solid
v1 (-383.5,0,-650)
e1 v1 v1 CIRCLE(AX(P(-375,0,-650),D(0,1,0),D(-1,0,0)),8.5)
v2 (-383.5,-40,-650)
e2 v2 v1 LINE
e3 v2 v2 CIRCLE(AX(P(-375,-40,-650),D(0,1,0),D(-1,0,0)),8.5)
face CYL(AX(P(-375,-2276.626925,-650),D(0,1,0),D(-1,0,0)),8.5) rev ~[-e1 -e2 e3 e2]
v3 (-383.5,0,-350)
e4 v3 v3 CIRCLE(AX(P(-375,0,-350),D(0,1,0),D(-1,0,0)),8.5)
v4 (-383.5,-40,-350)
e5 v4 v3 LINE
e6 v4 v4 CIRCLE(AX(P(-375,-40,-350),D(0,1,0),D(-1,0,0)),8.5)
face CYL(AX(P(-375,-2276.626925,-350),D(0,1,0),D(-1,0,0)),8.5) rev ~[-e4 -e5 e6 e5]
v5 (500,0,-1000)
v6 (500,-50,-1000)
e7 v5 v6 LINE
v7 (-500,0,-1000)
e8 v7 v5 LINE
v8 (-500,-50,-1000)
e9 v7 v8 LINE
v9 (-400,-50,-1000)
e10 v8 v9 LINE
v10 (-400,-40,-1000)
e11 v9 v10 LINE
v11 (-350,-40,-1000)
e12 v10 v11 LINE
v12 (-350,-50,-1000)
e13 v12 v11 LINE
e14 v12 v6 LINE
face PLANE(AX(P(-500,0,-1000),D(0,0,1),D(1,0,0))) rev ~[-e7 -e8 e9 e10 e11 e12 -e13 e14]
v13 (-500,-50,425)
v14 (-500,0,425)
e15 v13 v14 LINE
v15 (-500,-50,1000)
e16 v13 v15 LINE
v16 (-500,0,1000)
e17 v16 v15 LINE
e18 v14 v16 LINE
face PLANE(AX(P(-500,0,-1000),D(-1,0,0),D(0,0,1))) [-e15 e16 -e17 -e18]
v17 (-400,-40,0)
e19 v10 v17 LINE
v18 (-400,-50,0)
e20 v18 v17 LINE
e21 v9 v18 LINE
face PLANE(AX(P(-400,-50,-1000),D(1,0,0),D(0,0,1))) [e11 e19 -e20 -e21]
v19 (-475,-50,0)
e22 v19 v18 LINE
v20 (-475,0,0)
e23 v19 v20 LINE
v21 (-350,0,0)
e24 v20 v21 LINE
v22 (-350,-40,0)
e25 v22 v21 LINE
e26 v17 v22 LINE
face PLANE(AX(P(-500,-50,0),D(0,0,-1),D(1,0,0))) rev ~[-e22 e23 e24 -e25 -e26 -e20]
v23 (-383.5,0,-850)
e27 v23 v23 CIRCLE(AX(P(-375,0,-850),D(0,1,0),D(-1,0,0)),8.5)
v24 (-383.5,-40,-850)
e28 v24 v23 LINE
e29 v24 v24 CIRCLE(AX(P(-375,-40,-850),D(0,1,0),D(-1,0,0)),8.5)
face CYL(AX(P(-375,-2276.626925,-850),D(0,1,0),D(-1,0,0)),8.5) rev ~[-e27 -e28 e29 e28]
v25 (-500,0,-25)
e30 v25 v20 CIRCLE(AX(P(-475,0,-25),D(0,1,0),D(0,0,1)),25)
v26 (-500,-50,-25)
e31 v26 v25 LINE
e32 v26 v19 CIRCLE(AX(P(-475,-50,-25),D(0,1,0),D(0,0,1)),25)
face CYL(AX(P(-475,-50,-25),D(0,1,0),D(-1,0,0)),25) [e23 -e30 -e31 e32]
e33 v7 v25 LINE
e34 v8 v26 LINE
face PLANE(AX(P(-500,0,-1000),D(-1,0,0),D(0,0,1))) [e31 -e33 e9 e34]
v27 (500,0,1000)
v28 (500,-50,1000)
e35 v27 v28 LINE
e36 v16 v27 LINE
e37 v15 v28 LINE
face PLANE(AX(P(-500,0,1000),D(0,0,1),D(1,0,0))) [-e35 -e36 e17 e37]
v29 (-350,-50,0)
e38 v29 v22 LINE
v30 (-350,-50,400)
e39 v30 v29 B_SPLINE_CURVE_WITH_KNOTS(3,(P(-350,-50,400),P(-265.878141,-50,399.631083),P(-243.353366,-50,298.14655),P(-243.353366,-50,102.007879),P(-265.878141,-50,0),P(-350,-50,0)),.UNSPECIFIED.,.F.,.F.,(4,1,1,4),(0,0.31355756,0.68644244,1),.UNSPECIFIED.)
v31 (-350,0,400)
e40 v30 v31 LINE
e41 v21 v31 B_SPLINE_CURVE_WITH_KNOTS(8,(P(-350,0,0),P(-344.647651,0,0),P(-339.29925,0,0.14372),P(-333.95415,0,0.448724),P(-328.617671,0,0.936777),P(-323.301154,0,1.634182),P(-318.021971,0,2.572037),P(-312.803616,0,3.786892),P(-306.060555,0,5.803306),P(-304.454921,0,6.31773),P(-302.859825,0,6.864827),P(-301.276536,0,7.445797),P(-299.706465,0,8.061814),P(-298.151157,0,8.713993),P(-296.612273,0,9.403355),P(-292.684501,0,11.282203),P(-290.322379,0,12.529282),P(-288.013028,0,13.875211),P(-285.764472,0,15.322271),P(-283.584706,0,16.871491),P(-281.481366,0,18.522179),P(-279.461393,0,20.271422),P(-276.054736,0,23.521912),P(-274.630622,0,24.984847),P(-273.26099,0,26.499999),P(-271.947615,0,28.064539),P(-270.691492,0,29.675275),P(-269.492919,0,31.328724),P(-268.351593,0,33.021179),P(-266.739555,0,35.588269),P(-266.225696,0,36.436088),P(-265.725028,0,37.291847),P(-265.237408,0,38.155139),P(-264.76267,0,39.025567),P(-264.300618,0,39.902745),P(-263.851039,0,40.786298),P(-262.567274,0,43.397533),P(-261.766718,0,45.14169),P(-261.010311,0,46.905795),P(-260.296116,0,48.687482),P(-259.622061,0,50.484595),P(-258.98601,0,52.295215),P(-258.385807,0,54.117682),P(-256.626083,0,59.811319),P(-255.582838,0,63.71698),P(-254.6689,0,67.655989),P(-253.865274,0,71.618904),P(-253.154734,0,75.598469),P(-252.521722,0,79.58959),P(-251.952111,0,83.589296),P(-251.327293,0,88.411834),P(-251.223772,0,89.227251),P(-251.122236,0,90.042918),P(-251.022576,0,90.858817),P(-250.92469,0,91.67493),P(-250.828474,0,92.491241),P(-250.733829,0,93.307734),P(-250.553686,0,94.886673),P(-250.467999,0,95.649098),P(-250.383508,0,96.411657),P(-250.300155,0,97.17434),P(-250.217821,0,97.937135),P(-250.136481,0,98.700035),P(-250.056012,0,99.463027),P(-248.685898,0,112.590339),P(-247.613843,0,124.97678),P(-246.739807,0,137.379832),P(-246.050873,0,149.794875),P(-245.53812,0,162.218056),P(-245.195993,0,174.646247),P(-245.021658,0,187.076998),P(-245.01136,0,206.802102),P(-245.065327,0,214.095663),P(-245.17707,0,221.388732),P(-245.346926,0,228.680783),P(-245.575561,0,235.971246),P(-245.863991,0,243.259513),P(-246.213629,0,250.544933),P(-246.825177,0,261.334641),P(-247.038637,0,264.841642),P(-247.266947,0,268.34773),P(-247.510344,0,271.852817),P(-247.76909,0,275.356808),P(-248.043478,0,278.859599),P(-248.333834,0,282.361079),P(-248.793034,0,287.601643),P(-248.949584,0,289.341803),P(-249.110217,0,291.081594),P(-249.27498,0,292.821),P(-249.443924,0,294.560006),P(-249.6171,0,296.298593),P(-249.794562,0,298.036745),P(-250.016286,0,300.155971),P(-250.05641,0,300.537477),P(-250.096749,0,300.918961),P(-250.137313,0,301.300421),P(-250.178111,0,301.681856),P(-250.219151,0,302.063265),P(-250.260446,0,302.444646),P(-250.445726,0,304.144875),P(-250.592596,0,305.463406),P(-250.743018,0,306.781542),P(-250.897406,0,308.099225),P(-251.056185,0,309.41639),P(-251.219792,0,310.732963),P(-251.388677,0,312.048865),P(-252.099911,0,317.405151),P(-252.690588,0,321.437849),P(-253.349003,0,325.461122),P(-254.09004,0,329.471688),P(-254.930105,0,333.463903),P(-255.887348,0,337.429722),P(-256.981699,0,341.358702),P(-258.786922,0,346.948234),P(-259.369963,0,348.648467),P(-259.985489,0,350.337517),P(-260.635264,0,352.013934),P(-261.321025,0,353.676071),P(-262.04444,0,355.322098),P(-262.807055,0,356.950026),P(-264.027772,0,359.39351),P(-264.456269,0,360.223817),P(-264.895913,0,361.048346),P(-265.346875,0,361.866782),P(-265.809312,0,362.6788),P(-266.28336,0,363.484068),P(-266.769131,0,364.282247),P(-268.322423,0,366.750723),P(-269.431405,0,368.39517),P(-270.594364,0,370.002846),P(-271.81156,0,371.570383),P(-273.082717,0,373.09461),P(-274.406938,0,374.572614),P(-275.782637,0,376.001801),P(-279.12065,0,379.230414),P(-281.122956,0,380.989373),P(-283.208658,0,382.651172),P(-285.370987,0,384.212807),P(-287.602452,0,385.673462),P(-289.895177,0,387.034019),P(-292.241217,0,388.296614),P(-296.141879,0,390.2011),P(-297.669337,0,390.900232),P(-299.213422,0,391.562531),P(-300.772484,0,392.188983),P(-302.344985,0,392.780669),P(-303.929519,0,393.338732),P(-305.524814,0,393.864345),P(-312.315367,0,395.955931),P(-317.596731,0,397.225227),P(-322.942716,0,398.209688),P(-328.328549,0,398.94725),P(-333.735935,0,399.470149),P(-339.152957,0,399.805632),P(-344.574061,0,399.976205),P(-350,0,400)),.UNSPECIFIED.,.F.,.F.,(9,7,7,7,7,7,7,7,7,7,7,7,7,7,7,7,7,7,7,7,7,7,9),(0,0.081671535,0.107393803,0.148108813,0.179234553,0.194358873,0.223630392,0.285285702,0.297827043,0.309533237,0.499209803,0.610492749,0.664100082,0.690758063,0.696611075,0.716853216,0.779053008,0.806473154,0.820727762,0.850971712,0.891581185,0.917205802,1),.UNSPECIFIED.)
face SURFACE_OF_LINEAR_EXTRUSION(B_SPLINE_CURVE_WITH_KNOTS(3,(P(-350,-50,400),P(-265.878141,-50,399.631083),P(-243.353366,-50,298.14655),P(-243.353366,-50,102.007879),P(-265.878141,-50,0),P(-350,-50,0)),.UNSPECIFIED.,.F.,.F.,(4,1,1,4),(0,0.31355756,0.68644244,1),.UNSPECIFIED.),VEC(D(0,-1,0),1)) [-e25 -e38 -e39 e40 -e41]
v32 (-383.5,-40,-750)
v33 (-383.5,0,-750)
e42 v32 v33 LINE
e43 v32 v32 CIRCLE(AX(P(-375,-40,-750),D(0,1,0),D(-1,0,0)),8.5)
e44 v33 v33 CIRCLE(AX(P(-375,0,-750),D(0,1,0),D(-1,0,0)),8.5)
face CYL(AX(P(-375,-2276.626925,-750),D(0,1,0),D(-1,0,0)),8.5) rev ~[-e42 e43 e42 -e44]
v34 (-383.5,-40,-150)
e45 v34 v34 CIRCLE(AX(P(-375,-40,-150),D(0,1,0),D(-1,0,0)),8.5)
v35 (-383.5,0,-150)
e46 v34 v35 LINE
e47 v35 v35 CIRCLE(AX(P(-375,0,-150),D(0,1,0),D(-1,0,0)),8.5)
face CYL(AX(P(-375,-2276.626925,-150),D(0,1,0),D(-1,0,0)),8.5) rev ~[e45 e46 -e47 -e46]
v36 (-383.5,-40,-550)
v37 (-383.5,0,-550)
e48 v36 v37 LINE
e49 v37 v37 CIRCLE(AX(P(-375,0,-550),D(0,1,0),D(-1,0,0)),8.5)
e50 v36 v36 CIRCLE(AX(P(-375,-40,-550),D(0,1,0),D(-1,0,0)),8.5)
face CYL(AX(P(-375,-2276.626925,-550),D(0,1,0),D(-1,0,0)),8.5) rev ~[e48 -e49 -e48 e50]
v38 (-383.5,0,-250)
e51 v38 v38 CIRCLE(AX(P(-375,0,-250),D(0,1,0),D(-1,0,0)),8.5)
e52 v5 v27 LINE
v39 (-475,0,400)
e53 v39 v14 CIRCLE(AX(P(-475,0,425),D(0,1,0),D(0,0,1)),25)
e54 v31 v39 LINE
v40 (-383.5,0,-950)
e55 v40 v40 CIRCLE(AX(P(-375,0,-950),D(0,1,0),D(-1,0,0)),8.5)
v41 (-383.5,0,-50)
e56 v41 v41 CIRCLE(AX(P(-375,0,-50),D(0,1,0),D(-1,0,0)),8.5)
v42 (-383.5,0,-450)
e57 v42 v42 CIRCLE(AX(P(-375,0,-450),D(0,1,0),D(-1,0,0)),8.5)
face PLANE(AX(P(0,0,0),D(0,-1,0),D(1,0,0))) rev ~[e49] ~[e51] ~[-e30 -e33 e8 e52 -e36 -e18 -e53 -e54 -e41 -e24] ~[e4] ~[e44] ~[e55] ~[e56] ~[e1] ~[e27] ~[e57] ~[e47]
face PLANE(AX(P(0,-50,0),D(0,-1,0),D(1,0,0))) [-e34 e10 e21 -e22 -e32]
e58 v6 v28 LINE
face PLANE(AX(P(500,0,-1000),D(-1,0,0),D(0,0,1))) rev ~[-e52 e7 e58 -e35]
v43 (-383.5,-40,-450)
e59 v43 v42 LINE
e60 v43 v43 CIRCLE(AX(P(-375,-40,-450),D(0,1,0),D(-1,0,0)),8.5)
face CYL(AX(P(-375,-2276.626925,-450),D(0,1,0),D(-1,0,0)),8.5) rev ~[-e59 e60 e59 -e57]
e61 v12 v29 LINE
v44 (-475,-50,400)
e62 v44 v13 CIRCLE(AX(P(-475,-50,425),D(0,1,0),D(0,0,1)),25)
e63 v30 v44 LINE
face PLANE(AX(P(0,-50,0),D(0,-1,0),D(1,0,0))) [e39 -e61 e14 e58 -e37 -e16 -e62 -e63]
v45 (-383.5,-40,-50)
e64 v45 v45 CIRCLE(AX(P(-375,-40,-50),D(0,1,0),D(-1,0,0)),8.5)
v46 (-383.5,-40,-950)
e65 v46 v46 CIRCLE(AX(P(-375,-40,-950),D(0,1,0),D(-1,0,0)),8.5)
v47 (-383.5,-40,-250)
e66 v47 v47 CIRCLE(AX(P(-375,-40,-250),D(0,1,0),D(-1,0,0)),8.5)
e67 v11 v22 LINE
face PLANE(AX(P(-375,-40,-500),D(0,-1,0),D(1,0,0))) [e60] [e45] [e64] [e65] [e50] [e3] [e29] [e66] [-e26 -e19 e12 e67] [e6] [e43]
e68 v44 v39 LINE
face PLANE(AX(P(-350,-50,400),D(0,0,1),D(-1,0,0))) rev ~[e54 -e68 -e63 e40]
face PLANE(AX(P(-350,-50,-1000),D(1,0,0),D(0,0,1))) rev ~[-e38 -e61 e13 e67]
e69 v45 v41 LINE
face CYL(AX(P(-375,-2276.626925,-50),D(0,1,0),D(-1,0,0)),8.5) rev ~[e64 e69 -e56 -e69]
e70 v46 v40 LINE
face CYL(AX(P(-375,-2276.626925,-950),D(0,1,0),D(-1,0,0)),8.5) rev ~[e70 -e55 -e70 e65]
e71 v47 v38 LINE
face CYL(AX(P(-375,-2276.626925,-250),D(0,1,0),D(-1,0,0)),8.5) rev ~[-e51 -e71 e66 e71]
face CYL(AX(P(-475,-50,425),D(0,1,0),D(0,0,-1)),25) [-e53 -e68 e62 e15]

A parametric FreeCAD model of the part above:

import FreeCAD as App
import Part
import Sketcher
Q = App.Units.Quantity


def edges_at(feature, points):
    """Names of the edges that pass closest to the given points."""
    edges = feature.Shape.Edges
    near = lambda p: min(range(len(edges)), key=lambda i: edges[i].distToShape(Part.Vertex(*p))[0])
    return sorted({f"Edge{near(p) + 1}" for p in points})


def add_polygon(sketch, points):
    """Adds a closed chain of lines whose ends are joined by coincident constraints."""
    first, n = sketch.GeometryCount, len(points)
    for a, b in zip(points, points[1:] + points[:1]):
        sketch.addGeometry(Part.LineSegment(App.Vector(*a, 0), App.Vector(*b, 0)), False)
    for i in range(n):
        sketch.addConstraint(Sketcher.Constraint("Coincident", first + i, 2, first + (i + 1) % n, 1))

doc = App.newDocument("Part")
body = doc.addObject("PartDesign::Body", "Body")

sketch1 = body.newObject("Sketcher::SketchObject", "Sketch")
sketch1.AttachmentSupport = (doc.getObject("XZ_Plane"), [""])
sketch1.MapMode = "FlatFace"
add_polygon(sketch1, [(-500, 1000), (-500, -1000), (500, -1000), (500, 1000)])
sketch1.addConstraint([
    Sketcher.Constraint("Vertical", 0),
    Sketcher.Constraint("Horizontal", 1),
    Sketcher.Constraint("Vertical", 2),
    Sketcher.Constraint("Horizontal", 3),
    Sketcher.Constraint("Symmetric", 0, 2, 2, 2, -1, 1),
    Sketcher.Constraint("DistanceX", 1, 1, 1, 2, Q("1000 mm")),
    Sketcher.Constraint("DistanceY", 0, 2, 0, 1, Q("2000 mm")),
])
pad1 = body.newObject("PartDesign::Pad", "Pad")
pad1.Profile = sketch1
pad1.Length = 50

sketch2 = body.newObject("Sketcher::SketchObject", "Sketch001")
sketch2.AttachmentSupport = (doc.getObject("XZ_Plane"), [""])
sketch2.MapMode = "FlatFace"
sketch2.AttachmentOffset = App.Placement(App.Vector(0, 0, 50), App.Rotation())
add_polygon(sketch2, [(-400, 0), (-400, -1000), (-350, -1000), (-350, 0)])
sketch2.addConstraint([
    Sketcher.Constraint("Vertical", 0),
    Sketcher.Constraint("Horizontal", 1),
    Sketcher.Constraint("Vertical", 2),
    Sketcher.Constraint("Horizontal", 3),
    Sketcher.Constraint("PointOnObject", 2, 2, -1),
    Sketcher.Constraint("DistanceX", 1, 1, 1, 2, Q("50 mm")),
    Sketcher.Constraint("DistanceY", 0, 2, 0, 1, Q("1000 mm")),
    Sketcher.Constraint("DistanceX", 0, 2, -1, 1, Q("400 mm")),
])
pocket1 = body.newObject("PartDesign::Pocket", "Pocket")
pocket1.Profile = sketch2
pocket1.Length = 10

sketch3 = body.newObject("Sketcher::SketchObject", "Sketch002")
sketch3.AttachmentSupport = (doc.getObject("XZ_Plane"), [""])
sketch3.MapMode = "FlatFace"
sketch3.AttachmentOffset = App.Placement(App.Vector(0, 0, 50), App.Rotation())
sketch3.addGeometry([
    Part.LineSegment(App.Vector(-500, 400, 0), App.Vector(-500, 0, 0)),
    Part.LineSegment(App.Vector(-500, 0, 0), App.Vector(-350, 0, 0)),
    Part.BSplineCurve([App.Vector(-350, 400, 0), App.Vector(-265.878141, 399.631083, 0), App.Vector(-243.353366, 298.14655, 0), App.Vector(-243.353366, 102.007879, 0), App.Vector(-265.878141, 0, 0), App.Vector(-350, 0, 0)], [4, 1, 1, 4], [0, 0.31355756, 0.68644244, 1], False, 3, [1, 1, 1, 1, 1, 1], False),
    Part.LineSegment(App.Vector(-350, 400, 0), App.Vector(-500, 400, 0)),
], False)
sketch3.addConstraint([
    Sketcher.Constraint("Block", 2),
    Sketcher.Constraint("Coincident", 0, 2, 1, 1),
    Sketcher.Constraint("Coincident", 1, 2, 2, 2),
    Sketcher.Constraint("Coincident", 2, 1, 3, 1),
    Sketcher.Constraint("Coincident", 3, 2, 0, 1),
    Sketcher.Constraint("Vertical", 0),
    Sketcher.Constraint("Horizontal", 1),
    Sketcher.Constraint("Horizontal", 3),
    Sketcher.Constraint("DistanceX", 1, 1, 1, 2, Q("150 mm")),
])
pocket2 = body.newObject("PartDesign::Pocket", "Pocket001")
pocket2.Profile = sketch3
pocket2.Type = "ThroughAll"
doc.recompute()

fillet = body.newObject("PartDesign::Fillet", "Fillet")
fillet.Base = (pocket2, edges_at(pocket2, [(-500, -25, 400), (-500, -25, 0)]))
fillet.Radius = 25

sketch4 = body.newObject("Sketcher::SketchObject", "Sketch003")
sketch4.AttachmentSupport = (doc.getObject("XZ_Plane"), [""])
sketch4.MapMode = "FlatFace"
sketch4.AttachmentOffset = App.Placement(App.Vector(0, 0, 40), App.Rotation())
sketch4.addGeometry([
    Part.Circle(App.Vector(-375, -50, 0), App.Vector(0, 0, 1), 8),
    Part.Circle(App.Vector(-375, -150, 0), App.Vector(0, 0, 1), 8),
    Part.Circle(App.Vector(-375, -250, 0), App.Vector(0, 0, 1), 8),
    Part.Circle(App.Vector(-375, -350, 0), App.Vector(0, 0, 1), 8),
    Part.Circle(App.Vector(-375, -450, 0), App.Vector(0, 0, 1), 8),
    Part.Circle(App.Vector(-375, -550, 0), App.Vector(0, 0, 1), 8),
    Part.Circle(App.Vector(-375, -650, 0), App.Vector(0, 0, 1), 8),
    Part.Circle(App.Vector(-375, -750, 0), App.Vector(0, 0, 1), 8),
    Part.Circle(App.Vector(-375, -850, 0), App.Vector(0, 0, 1), 8),
    Part.Circle(App.Vector(-375, -950, 0), App.Vector(0, 0, 1), 8),
], False)
sketch4.addConstraint([
    Sketcher.Constraint("Equal", 0, 1),
    Sketcher.Constraint("Equal", 1, 2),
    Sketcher.Constraint("Equal", 2, 3),
    Sketcher.Constraint("Equal", 3, 4),
    Sketcher.Constraint("Equal", 4, 5),
    Sketcher.Constraint("Equal", 5, 6),
    Sketcher.Constraint("Equal", 6, 7),
    Sketcher.Constraint("Equal", 7, 8),
    Sketcher.Constraint("Equal", 8, 9),
    Sketcher.Constraint("Vertical", 0, 3, 1, 3),
    Sketcher.Constraint("Vertical", 1, 3, 2, 3),
    Sketcher.Constraint("Vertical", 2, 3, 3, 3),
    Sketcher.Constraint("Vertical", 3, 3, 4, 3),
    Sketcher.Constraint("Vertical", 4, 3, 5, 3),
    Sketcher.Constraint("Vertical", 5, 3, 6, 3),
    Sketcher.Constraint("Vertical", 6, 3, 7, 3),
    Sketcher.Constraint("Vertical", 7, 3, 8, 3),
    Sketcher.Constraint("Vertical", 8, 3, 9, 3),
    Sketcher.Constraint("Diameter", 0, Q("17 mm")),
    Sketcher.Constraint("DistanceX", 0, 3, -1, 1, Q("375 mm")),
    Sketcher.Constraint("DistanceY", 0, 3, -1, 1, Q("50 mm")),
    Sketcher.Constraint("DistanceY", 1, 3, -1, 1, Q("150 mm")),
    Sketcher.Constraint("DistanceY", 2, 3, -1, 1, Q("250 mm")),
    Sketcher.Constraint("DistanceY", 3, 3, -1, 1, Q("350 mm")),
    Sketcher.Constraint("DistanceY", 4, 3, -1, 1, Q("450 mm")),
    Sketcher.Constraint("DistanceY", 5, 3, -1, 1, Q("550 mm")),
    Sketcher.Constraint("DistanceY", 6, 3, -1, 1, Q("650 mm")),
    Sketcher.Constraint("DistanceY", 7, 3, -1, 1, Q("750 mm")),
    Sketcher.Constraint("DistanceY", 8, 3, -1, 1, Q("850 mm")),
    Sketcher.Constraint("DistanceY", 9, 3, -1, 1, Q("950 mm")),
])
doc.recompute()
hole = body.newObject("PartDesign::Hole", "Hole")
hole.Profile = sketch4
hole.ThreadType = "None"
hole.Diameter = 17
hole.DepthType = "ThroughAll"

doc.recompute()
